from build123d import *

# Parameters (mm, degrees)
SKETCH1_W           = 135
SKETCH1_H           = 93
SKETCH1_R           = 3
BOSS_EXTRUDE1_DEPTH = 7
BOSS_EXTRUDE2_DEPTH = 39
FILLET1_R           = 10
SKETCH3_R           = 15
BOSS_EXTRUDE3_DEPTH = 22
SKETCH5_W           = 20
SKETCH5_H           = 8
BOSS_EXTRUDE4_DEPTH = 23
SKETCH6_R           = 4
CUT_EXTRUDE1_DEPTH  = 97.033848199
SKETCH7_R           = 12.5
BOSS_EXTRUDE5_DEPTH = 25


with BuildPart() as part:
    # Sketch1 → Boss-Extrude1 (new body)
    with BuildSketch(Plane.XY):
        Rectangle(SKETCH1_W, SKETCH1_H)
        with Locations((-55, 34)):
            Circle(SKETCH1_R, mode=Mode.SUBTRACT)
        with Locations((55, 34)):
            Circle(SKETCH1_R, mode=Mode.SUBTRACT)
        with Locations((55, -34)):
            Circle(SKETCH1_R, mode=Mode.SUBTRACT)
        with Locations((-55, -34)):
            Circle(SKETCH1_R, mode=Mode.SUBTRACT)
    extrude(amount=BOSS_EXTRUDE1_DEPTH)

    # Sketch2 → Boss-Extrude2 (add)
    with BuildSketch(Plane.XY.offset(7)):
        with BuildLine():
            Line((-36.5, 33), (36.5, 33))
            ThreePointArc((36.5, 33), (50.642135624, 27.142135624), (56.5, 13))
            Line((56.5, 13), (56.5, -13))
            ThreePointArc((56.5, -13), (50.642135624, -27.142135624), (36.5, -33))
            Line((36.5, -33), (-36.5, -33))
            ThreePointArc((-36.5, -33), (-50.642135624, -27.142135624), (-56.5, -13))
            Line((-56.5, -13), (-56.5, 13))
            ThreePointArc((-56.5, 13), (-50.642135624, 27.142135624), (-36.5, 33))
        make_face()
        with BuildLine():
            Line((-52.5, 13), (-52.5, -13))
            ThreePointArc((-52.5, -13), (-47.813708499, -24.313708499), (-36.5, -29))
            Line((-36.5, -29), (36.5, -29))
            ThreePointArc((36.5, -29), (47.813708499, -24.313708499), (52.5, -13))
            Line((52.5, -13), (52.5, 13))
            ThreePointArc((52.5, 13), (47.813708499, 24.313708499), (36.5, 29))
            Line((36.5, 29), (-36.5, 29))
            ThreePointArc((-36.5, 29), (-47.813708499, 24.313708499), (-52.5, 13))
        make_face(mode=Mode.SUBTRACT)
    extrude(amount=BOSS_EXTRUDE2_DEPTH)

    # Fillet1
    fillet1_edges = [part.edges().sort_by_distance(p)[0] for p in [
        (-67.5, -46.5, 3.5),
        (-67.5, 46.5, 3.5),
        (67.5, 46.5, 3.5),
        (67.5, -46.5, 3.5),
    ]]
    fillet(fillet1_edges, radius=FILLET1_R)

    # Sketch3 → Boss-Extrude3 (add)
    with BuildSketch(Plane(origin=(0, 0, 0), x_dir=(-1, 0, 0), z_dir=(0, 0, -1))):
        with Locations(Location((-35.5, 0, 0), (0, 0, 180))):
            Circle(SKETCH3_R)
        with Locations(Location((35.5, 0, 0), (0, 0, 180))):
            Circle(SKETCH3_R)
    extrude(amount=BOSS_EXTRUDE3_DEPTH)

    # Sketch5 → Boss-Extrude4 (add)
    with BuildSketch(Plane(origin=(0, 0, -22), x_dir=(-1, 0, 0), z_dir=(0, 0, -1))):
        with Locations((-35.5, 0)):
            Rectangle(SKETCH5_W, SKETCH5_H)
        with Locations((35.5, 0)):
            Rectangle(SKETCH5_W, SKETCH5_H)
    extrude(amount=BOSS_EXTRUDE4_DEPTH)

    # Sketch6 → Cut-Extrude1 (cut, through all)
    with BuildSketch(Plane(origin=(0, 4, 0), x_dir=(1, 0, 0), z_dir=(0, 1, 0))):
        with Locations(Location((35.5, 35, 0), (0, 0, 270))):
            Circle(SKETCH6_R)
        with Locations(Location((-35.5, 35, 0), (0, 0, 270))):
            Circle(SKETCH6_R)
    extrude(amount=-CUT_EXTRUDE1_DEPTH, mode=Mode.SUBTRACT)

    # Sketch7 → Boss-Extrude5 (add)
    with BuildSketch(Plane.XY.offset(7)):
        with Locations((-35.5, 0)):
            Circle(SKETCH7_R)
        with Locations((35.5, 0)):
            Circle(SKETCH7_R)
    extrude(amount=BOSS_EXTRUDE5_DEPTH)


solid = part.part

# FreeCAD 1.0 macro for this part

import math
import FreeCAD as App
import Part
import Sketcher
from FreeCAD import Vector


def edges_at(feature, points):
    """Names of the edges that pass closest to the given points."""
    edges = feature.Shape.Edges
    near = lambda p: min(range(len(edges)), key=lambda i: edges[i].distToShape(Part.Vertex(*p))[0])
    return sorted({f"Edge{near(p) + 1}" for p in points})


def add_polygon(sketch, points):
    """Adds a closed chain of lines whose ends are joined by coincident constraints."""
    first, n = sketch.GeometryCount, len(points)
    for a, b in zip(points, points[1:] + points[:1]):
        sketch.addGeometry(Part.LineSegment(App.Vector(*a, 0), App.Vector(*b, 0)), False)
    for i in range(n):
        sketch.addConstraint(Sketcher.Constraint("Coincident", first + i, 2, first + (i + 1) % n, 1))

doc = App.newDocument("Part")
params = doc.addObject("Spreadsheet::Sheet", "Params")
for row, (alias, value) in enumerate([
    ("sketch1_diameter", "6 mm"),
    ("sketch1_width", "135 mm"),
    ("sketch1_height", "93 mm"),
    ("pad1_length", "7 mm"),
    ("sketch2_radius", "20 mm"),
    ("sketch2_radius2", "16 mm"),
    ("sketch2_width", "73 mm"),
    ("sketch2_height", "26 mm"),
    ("pad2_length", "39 mm"),
    ("fillet_radius", "10 mm"),
    ("sketch3_diameter", "30 mm"),
    ("pad3_length", "22 mm"),
    ("sketch4_width", "20 mm"),
    ("sketch4_height", "8 mm"),
    ("pad4_length", "23 mm"),
    ("sketch5_diameter", "8 mm"),
    ("sketch6_diameter", "25 mm"),
    ("pad5_length", "25 mm"),
], start=1):
    params.set(f"A{row}", alias)
    params.set(f"B{row}", "=" + value)
    params.setAlias(f"B{row}", alias)

body = doc.addObject("PartDesign::Body", "Body")

# Sketch on XY plane
sketch1 = doc.addObject("Sketcher::SketchObject", "Sketch")
body.addObject(sketch1)
sketch1.AttachmentSupport = (doc.XY_Plane, [""])
sketch1.MapMode = "FlatFace"
add_polygon(sketch1, [(-67.5, 46.5), (-67.5, -46.5), (67.5, -46.5), (67.5, 46.5)])  # lines 0-3
sketch1.addGeometry(Part.Circle(Vector(-55, -34, 0), Vector(0, 0, 1), 3), False)  # 4
sketch1.addGeometry(Part.Circle(Vector(55, -34, 0), Vector(0, 0, 1), 3), False)  # 5
sketch1.addGeometry(Part.Circle(Vector(-55, 34, 0), Vector(0, 0, 1), 3), False)  # 6
sketch1.addGeometry(Part.Circle(Vector(55, 34, 0), Vector(0, 0, 1), 3), False)  # 7
sketch1.addConstraint(Sketcher.Constraint("Vertical", 0))
sketch1.addConstraint(Sketcher.Constraint("Horizontal", 1))
sketch1.addConstraint(Sketcher.Constraint("Vertical", 2))
sketch1.addConstraint(Sketcher.Constraint("Horizontal", 3))
sketch1.addConstraint(Sketcher.Constraint("Equal", 4, 5))
sketch1.addConstraint(Sketcher.Constraint("Equal", 5, 6))
sketch1.addConstraint(Sketcher.Constraint("Equal", 6, 7))
sketch1.addConstraint(Sketcher.Constraint("Symmetric", 5, 3, 6, 3, -1, 1))
sketch1.addConstraint(Sketcher.Constraint("Symmetric", 4, 3, 7, 3, -1, 1))
sketch1.addConstraint(Sketcher.Constraint("Symmetric", 0, 2, 2, 2, -1, 1))
sketch1.addConstraint(Sketcher.Constraint("Symmetric", 4, 3, 5, 3, -2))
sketch1.addConstraint(Sketcher.Constraint("Diameter", 4, 6.0))
sketch1.addConstraint(Sketcher.Constraint("DistanceX", 1, 1, 1, 2, 135.0))
sketch1.addConstraint(Sketcher.Constraint("DistanceY", 0, 2, 0, 1, 93.0))
sketch1.addConstraint(Sketcher.Constraint("DistanceX", 4, 3, -1, 1, 55.0))
sketch1.addConstraint(Sketcher.Constraint("DistanceY", 4, 3, -1, 1, 34.0))
sketch1.setExpression("Constraints[15]", "Params.sketch1_diameter")
sketch1.setExpression("Constraints[16]", "Params.sketch1_width")
sketch1.setExpression("Constraints[17]", "Params.sketch1_height")
pad1 = doc.addObject("PartDesign::Pad", "Pad")
body.addObject(pad1)
pad1.Profile = sketch1
pad1.setExpression("Length", "Params.pad1_length")

# Sketch on XY plane
sketch2 = doc.addObject("Sketcher::SketchObject", "Sketch001")
body.addObject(sketch2)
sketch2.AttachmentSupport = (doc.XY_Plane, [""])
sketch2.MapMode = "FlatFace"
sketch2.AttachmentOffset = App.Placement(Vector(0, 0, 7), App.Rotation())
sketch2.addGeometry(Part.LineSegment(Vector(36.5, 33, 0), Vector(-36.5, 33, 0)), False)
sketch2.addGeometry(Part.ArcOfCircle(Part.Circle(Vector(-36.5, 13, 0), Vector(0, 0, 1), 20), math.radians(90), math.radians(180)), False)
sketch2.addGeometry(Part.LineSegment(Vector(-56.5, 13, 0), Vector(-56.5, -13, 0)), False)
sketch2.addGeometry(Part.ArcOfCircle(Part.Circle(Vector(-36.5, -13, 0), Vector(0, 0, 1), 20), math.radians(180), math.radians(270)), False)
sketch2.addGeometry(Part.LineSegment(Vector(-36.5, -33, 0), Vector(36.5, -33, 0)), False)
sketch2.addGeometry(Part.ArcOfCircle(Part.Circle(Vector(36.5, -13, 0), Vector(0, 0, 1), 20), math.radians(-90), math.radians(0)), False)
sketch2.addGeometry(Part.LineSegment(Vector(56.5, -13, 0), Vector(56.5, 13, 0)), False)
sketch2.addGeometry(Part.ArcOfCircle(Part.Circle(Vector(36.5, 13, 0), Vector(0, 0, 1), 20), math.radians(0), math.radians(90)), False)
sketch2.addGeometry(Part.ArcOfCircle(Part.Circle(Vector(-36.5, 13, 0), Vector(0, 0, 1), 16), math.radians(90), math.radians(180)), False)
sketch2.addGeometry(Part.LineSegment(Vector(-36.5, 29, 0), Vector(36.5, 29, 0)), False)
sketch2.addGeometry(Part.ArcOfCircle(Part.Circle(Vector(36.5, 13, 0), Vector(0, 0, 1), 16), math.radians(0), math.radians(90)), False)
sketch2.addGeometry(Part.LineSegment(Vector(52.5, 13, 0), Vector(52.5, -13, 0)), False)
sketch2.addGeometry(Part.ArcOfCircle(Part.Circle(Vector(36.5, -13, 0), Vector(0, 0, 1), 16), math.radians(-90), math.radians(0)), False)
sketch2.addGeometry(Part.LineSegment(Vector(36.5, -29, 0), Vector(-36.5, -29, 0)), False)
sketch2.addGeometry(Part.ArcOfCircle(Part.Circle(Vector(-36.5, -13, 0), Vector(0, 0, 1), 16), math.radians(180), math.radians(270)), False)
sketch2.addGeometry(Part.LineSegment(Vector(-52.5, -13, 0), Vector(-52.5, 13, 0)), False)
sketch2.addConstraint(Sketcher.Constraint("Tangent", 0, 2, 1, 1))
sketch2.addConstraint(Sketcher.Constraint("Tangent", 1, 2, 2, 1))
sketch2.addConstraint(Sketcher.Constraint("Tangent", 2, 2, 3, 1))
sketch2.addConstraint(Sketcher.Constraint("Tangent", 3, 2, 4, 1))
sketch2.addConstraint(Sketcher.Constraint("Tangent", 4, 2, 5, 1))
sketch2.addConstraint(Sketcher.Constraint("Tangent", 5, 2, 6, 1))
sketch2.addConstraint(Sketcher.Constraint("Tangent", 6, 2, 7, 1))
sketch2.addConstraint(Sketcher.Constraint("Tangent", 7, 2, 0, 1))
sketch2.addConstraint(Sketcher.Constraint("Tangent", 8, 1, 9, 1))
sketch2.addConstraint(Sketcher.Constraint("Tangent", 9, 2, 10, 2))
sketch2.addConstraint(Sketcher.Constraint("Tangent", 10, 1, 11, 1))
sketch2.addConstraint(Sketcher.Constraint("Tangent", 11, 2, 12, 2))
sketch2.addConstraint(Sketcher.Constraint("Tangent", 12, 1, 13, 1))
sketch2.addConstraint(Sketcher.Constraint("Tangent", 13, 2, 14, 2))
sketch2.addConstraint(Sketcher.Constraint("Tangent", 14, 1, 15, 1))
sketch2.addConstraint(Sketcher.Constraint("Tangent", 15, 2, 8, 2))
sketch2.addConstraint(Sketcher.Constraint("Horizontal", 0))
sketch2.addConstraint(Sketcher.Constraint("Vertical", 2))
sketch2.addConstraint(Sketcher.Constraint("Horizontal", 4))
sketch2.addConstraint(Sketcher.Constraint("Vertical", 6))
sketch2.addConstraint(Sketcher.Constraint("Horizontal", 9))
sketch2.addConstraint(Sketcher.Constraint("Vertical", 11))
sketch2.addConstraint(Sketcher.Constraint("Horizontal", 13))
sketch2.addConstraint(Sketcher.Constraint("Vertical", 15))
sketch2.addConstraint(Sketcher.Constraint("Coincident", 8, 3, 1, 3))
sketch2.addConstraint(Sketcher.Constraint("Coincident", 10, 3, 7, 3))
sketch2.addConstraint(Sketcher.Constraint("Coincident", 12, 3, 5, 3))
sketch2.addConstraint(Sketcher.Constraint("Equal", 1, 3))
sketch2.addConstraint(Sketcher.Constraint("Equal", 3, 5))
sketch2.addConstraint(Sketcher.Constraint("Equal", 5, 7))
sketch2.addConstraint(Sketcher.Constraint("Equal", 12, 14))
sketch2.addConstraint(Sketcher.Constraint("Symmetric", 1, 3, 5, 3, -1, 1))
sketch2.addConstraint(Sketcher.Constraint("Radius", 1, 20.0))
sketch2.addConstraint(Sketcher.Constraint("Radius", 8, 16.0))
sketch2.addConstraint(Sketcher.Constraint("DistanceX", 0, 2, 0, 1, 73.0))
sketch2.addConstraint(Sketcher.Constraint("DistanceY", 2, 2, 2, 1, 26.0))
sketch2.setExpression("Constraints[32]", "Params.sketch2_radius")
sketch2.setExpression("Constraints[33]", "Params.sketch2_radius2")
sketch2.setExpression("Constraints[34]", "Params.sketch2_width")
sketch2.setExpression("Constraints[35]", "Params.sketch2_height")
pad2 = doc.addObject("PartDesign::Pad", "Pad001")
body.addObject(pad2)
pad2.Profile = sketch2
pad2.setExpression("Length", "Params.pad2_length")
doc.recompute()

fillet = doc.addObject("PartDesign::Fillet", "Fillet")
body.addObject(fillet)
fillet.Base = (pad2, edges_at(pad2, [
    (-67.5, -46.5, 3.5),
    (-67.5, 46.5, 3.5),
    (67.5, 46.5, 3.5),
    (67.5, -46.5, 3.5),
]))
fillet.setExpression("Radius", "Params.fillet_radius")

# Sketch on XY plane
sketch3 = doc.addObject("Sketcher::SketchObject", "Sketch002")
body.addObject(sketch3)
sketch3.AttachmentSupport = (doc.XY_Plane, [""])
sketch3.MapMode = "FlatFace"
sketch3.addGeometry(Part.Circle(Vector(35.5, 0, 0), Vector(0, 0, 1), 15), False)
sketch3.addGeometry(Part.Circle(Vector(-35.5, 0, 0), Vector(0, 0, 1), 15), False)
sketch3.addConstraint(Sketcher.Constraint("Equal", 0, 1))
sketch3.addConstraint(Sketcher.Constraint("Symmetric", 0, 3, 1, 3, -1, 1))
sketch3.addConstraint(Sketcher.Constraint("PointOnObject", 0, 3, -1))
sketch3.addConstraint(Sketcher.Constraint("Diameter", 0, 30.0))
sketch3.addConstraint(Sketcher.Constraint("DistanceX", 1, 3, 0, 3, 71.0))
sketch3.setExpression("Constraints[3]", "Params.sketch3_diameter")
pad3 = doc.addObject("PartDesign::Pad", "Pad002")
body.addObject(pad3)
pad3.Profile = sketch3
pad3.setExpression("Length", "Params.pad3_length")
pad3.Reversed = True

# Sketch on XY plane
sketch4 = doc.addObject("Sketcher::SketchObject", "Sketch003")
body.addObject(sketch4)
sketch4.AttachmentSupport = (doc.XY_Plane, [""])
sketch4.MapMode = "FlatFace"
sketch4.AttachmentOffset = App.Placement(Vector(0, 0, -22), App.Rotation())
add_polygon(sketch4, [(45.5, 4), (45.5, -4), (25.5, -4), (25.5, 4)])  # lines 0-3
add_polygon(sketch4, [(-25.5, 4), (-25.5, -4), (-45.5, -4), (-45.5, 4)])  # lines 4-7
sketch4.addConstraint(Sketcher.Constraint("Vertical", 0))
sketch4.addConstraint(Sketcher.Constraint("Horizontal", 1))
sketch4.addConstraint(Sketcher.Constraint("Vertical", 2))
sketch4.addConstraint(Sketcher.Constraint("Horizontal", 3))
sketch4.addConstraint(Sketcher.Constraint("Vertical", 4))
sketch4.addConstraint(Sketcher.Constraint("Horizontal", 5))
sketch4.addConstraint(Sketcher.Constraint("Vertical", 6))
sketch4.addConstraint(Sketcher.Constraint("Horizontal", 7))
sketch4.addConstraint(Sketcher.Constraint("Symmetric", 2, 2, 4, 2, -1, 1))
sketch4.addConstraint(Sketcher.Constraint("Symmetric", 0, 2, 6, 2, -1, 1))
sketch4.addConstraint(Sketcher.Constraint("Horizontal", 1, 2, 4, 2))
sketch4.addConstraint(Sketcher.Constraint("DistanceX", 1, 2, 1, 1, 20.0))
sketch4.addConstraint(Sketcher.Constraint("DistanceY", 0, 2, 0, 1, 8.0))
sketch4.addConstraint(Sketcher.Constraint("DistanceX", 4, 2, 1, 2, 51.0))
sketch4.setExpression("Constraints[19]", "Params.sketch4_width")
sketch4.setExpression("Constraints[20]", "Params.sketch4_height")
pad4 = doc.addObject("PartDesign::Pad", "Pad003")
body.addObject(pad4)
pad4.Profile = sketch4
pad4.setExpression("Length", "Params.pad4_length")
pad4.Reversed = True

# Sketch on XZ plane
sketch5 = doc.addObject("Sketcher::SketchObject", "Sketch004")
body.addObject(sketch5)
sketch5.AttachmentSupport = (doc.XZ_Plane, [""])
sketch5.MapMode = "FlatFace"
sketch5.AttachmentOffset = App.Placement(Vector(0, 0, -4), App.Rotation())
sketch5.addGeometry(Part.Circle(Vector(35.5, -35, 0), Vector(0, 0, 1), 4), False)
sketch5.addGeometry(Part.Circle(Vector(-35.5, -35, 0), Vector(0, 0, 1), 4), False)
sketch5.addConstraint(Sketcher.Constraint("Equal", 0, 1))
sketch5.addConstraint(Sketcher.Constraint("Symmetric", 0, 3, 1, 3, -2))
sketch5.addConstraint(Sketcher.Constraint("Diameter", 0, 8.0))
sketch5.addConstraint(Sketcher.Constraint("DistanceY", 0, 3, -1, 1, 35.0))
sketch5.addConstraint(Sketcher.Constraint("DistanceX", 1, 3, 0, 3, 71.0))
sketch5.setExpression("Constraints[2]", "Params.sketch5_diameter")
pocket1 = doc.addObject("PartDesign::Pocket", "Pocket")
body.addObject(pocket1)
pocket1.Profile = sketch5
pocket1.Type = "ThroughAll"
pocket1.Reversed = True

# Sketch on XY plane
sketch6 = doc.addObject("Sketcher::SketchObject", "Sketch005")
body.addObject(sketch6)
sketch6.AttachmentSupport = (doc.XY_Plane, [""])
sketch6.MapMode = "FlatFace"
sketch6.AttachmentOffset = App.Placement(Vector(0, 0, 7), App.Rotation())
sketch6.addGeometry(Part.Circle(Vector(-35.5, 0, 0), Vector(0, 0, 1), 12.5), False)
sketch6.addGeometry(Part.Circle(Vector(35.5, 0, 0), Vector(0, 0, 1), 12.5), False)
sketch6.addConstraint(Sketcher.Constraint("Equal", 0, 1))
sketch6.addConstraint(Sketcher.Constraint("Symmetric", 0, 3, 1, 3, -1, 1))
sketch6.addConstraint(Sketcher.Constraint("PointOnObject", 0, 3, -1))
sketch6.addConstraint(Sketcher.Constraint("Diameter", 0, 25.0))
sketch6.addConstraint(Sketcher.Constraint("DistanceX", 0, 3, 1, 3, 71.0))
sketch6.setExpression("Constraints[3]", "Params.sketch6_diameter")
pad5 = doc.addObject("PartDesign::Pad", "Pad004")
body.addObject(pad5)
pad5.Profile = sketch6
pad5.setExpression("Length", "Params.pad5_length")

doc.recompute()
